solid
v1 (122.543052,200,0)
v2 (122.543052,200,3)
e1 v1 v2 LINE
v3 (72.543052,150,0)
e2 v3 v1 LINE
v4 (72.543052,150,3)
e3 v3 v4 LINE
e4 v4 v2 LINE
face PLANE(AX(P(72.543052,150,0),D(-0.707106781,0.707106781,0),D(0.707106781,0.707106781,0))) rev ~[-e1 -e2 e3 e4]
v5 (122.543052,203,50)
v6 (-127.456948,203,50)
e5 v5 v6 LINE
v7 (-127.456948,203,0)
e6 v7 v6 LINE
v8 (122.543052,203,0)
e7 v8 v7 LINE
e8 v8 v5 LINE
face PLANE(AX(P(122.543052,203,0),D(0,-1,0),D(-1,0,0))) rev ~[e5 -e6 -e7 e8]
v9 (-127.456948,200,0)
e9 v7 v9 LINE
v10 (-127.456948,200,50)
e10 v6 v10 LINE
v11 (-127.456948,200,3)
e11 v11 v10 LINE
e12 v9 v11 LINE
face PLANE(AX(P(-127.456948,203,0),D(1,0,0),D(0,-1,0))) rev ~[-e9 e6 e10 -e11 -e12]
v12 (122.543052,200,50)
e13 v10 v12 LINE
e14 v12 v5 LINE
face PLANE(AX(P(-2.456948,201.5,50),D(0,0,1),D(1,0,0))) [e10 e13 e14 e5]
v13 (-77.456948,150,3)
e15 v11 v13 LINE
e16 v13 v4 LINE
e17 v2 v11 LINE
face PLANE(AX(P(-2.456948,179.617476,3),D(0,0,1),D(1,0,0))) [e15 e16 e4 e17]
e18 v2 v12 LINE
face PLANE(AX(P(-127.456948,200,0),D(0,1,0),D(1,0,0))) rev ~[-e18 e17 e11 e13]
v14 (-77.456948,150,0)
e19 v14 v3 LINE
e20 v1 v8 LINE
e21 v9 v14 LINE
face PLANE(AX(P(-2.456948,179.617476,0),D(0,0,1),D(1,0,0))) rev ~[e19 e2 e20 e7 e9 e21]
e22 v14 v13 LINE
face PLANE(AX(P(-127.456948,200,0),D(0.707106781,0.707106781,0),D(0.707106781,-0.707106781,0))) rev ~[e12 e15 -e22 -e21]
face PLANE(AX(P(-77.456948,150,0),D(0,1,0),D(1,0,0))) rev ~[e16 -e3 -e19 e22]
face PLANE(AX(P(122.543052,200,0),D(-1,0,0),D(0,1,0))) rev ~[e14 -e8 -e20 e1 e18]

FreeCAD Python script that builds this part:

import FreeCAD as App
import Part
import Sketcher
from FreeCAD import Vector
Q = App.Units.Quantity


def add_polygon(sketch, points):
    """Adds a closed chain of lines whose ends are joined by coincident constraints."""
    first, n = sketch.GeometryCount, len(points)
    for a, b in zip(points, points[1:] + points[:1]):
        sketch.addGeometry(Part.LineSegment(App.Vector(*a, 0), App.Vector(*b, 0)), False)
    for i in range(n):
        sketch.addConstraint(Sketcher.Constraint("Coincident", first + i, 2, first + (i + 1) % n, 1))

doc = App.newDocument("Part")
body = doc.addObject("PartDesign::Body", "Body")

# Sketch on XY plane
sketch1 = body.newObject("Sketcher::SketchObject", "Sketch")
sketch1.AttachmentSupport = (doc.getObject("XY_Plane"), [""])
sketch1.MapMode = "FlatFace"
add_polygon(sketch1, [(-127.5, 203), (-127.5, 200), (122.5, 200), (122.5, 203)])  # lines 0-3
sketch1.addConstraint(Sketcher.Constraint("Vertical", 0))
sketch1.addConstraint(Sketcher.Constraint("Horizontal", 1))
sketch1.addConstraint(Sketcher.Constraint("Vertical", 2))
sketch1.addConstraint(Sketcher.Constraint("Horizontal", 3))
sketch1.addConstraint(Sketcher.Constraint("DistanceX", 1, 1, 1, 2, Q("250 mm")))
sketch1.addConstraint(Sketcher.Constraint("DistanceY", 0, 2, 0, 1, Q("3 mm")))
sketch1.addConstraint(Sketcher.Constraint("DistanceY", -1, 1, 0, 2, Q("200 mm")))
sketch1.addConstraint(Sketcher.Constraint("DistanceX", 0, 2, -1, 1, Q("127.456948 mm")))
pad1 = body.newObject("PartDesign::Pad", "Pad")
pad1.Profile = sketch1
pad1.Length = 50

# Sketch on XY plane
sketch2 = body.newObject("Sketcher::SketchObject", "Sketch001")
sketch2.AttachmentSupport = (doc.getObject("XY_Plane"), [""])
sketch2.MapMode = "FlatFace"
add_polygon(sketch2, [(-127, 200), (-77, 150), (73, 150), (123, 200)])  # lines 0-3
sketch2.addConstraint(Sketcher.Constraint("Horizontal", 1))
sketch2.addConstraint(Sketcher.Constraint("Horizontal", 3))
sketch2.addConstraint(Sketcher.Constraint("Perpendicular", 0, 2))
sketch2.addConstraint(Sketcher.Constraint("Equal", 0, 2))
sketch2.addConstraint(Sketcher.Constraint("DistanceX", 1, 1, 1, 2, Q("150 mm")))
sketch2.addConstraint(Sketcher.Constraint("DistanceX", 3, 2, 3, 1, Q("250 mm")))
sketch2.addConstraint(Sketcher.Constraint("DistanceY", -1, 1, 0, 2, Q("150 mm")))
sketch2.addConstraint(Sketcher.Constraint("DistanceX", 0, 2, -1, 1, Q("77.456948 mm")))
pad2 = body.newObject("PartDesign::Pad", "Pad001")
pad2.Profile = sketch2
pad2.Length = 3

doc.recompute()
